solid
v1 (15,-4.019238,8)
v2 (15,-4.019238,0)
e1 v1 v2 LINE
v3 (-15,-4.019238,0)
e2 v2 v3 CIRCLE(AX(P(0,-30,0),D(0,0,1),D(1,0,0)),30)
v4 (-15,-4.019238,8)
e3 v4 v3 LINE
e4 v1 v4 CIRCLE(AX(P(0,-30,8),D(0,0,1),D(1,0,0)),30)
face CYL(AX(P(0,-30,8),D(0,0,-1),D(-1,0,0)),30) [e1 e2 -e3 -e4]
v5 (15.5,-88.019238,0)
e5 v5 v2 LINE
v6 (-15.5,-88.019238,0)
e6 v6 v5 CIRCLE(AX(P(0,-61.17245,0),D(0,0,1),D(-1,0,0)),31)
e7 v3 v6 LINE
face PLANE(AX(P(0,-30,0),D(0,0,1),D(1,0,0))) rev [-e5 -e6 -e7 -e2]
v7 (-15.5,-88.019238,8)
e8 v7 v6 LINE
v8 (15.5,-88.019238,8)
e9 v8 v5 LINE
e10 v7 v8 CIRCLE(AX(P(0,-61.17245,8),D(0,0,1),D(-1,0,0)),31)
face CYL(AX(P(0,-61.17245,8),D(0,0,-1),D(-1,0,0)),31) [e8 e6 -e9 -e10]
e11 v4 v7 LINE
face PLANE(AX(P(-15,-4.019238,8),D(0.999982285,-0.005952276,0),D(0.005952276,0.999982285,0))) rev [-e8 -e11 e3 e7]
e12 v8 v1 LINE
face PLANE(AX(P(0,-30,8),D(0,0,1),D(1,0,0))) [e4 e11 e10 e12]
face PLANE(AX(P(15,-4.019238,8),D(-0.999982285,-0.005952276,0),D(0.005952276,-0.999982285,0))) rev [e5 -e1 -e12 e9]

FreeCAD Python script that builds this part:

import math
import FreeCAD as App
import Part
import Sketcher

V = App.Vector

doc = App.newDocument("Part")
body = doc.addObject("PartDesign::Body", "Body")

# Sketch on XY plane
sketch1 = body.newObject("Sketcher::SketchObject", "Sketch")
sketch1.AttachmentSupport = (doc.getObject("XY_Plane"), [""])
sketch1.MapMode = "FlatFace"
sketch1.addGeometry(Part.LineSegment(V(-15, -4, 0), V(-16, -88, 0)), False)
sketch1.addGeometry(Part.ArcOfCircle(Part.Circle(V(0, -61, 0), V(0, 0, 1), 31), math.radians(-120), math.radians(-60)), False)
sketch1.addGeometry(Part.LineSegment(V(16, -88, 0), V(15, -4, 0)), False)
sketch1.addGeometry(Part.ArcOfCircle(Part.Circle(V(0, -30, 0), V(0, 0, 1), 30), math.radians(60), math.radians(120)), False)
sketch1.addConstraint(Sketcher.Constraint("Coincident", 0, 2, 1, 1))
sketch1.addConstraint(Sketcher.Constraint("Coincident", 1, 2, 2, 1))
sketch1.addConstraint(Sketcher.Constraint("Coincident", 2, 2, 3, 1))
sketch1.addConstraint(Sketcher.Constraint("Coincident", 3, 2, 0, 1))
sketch1.addConstraint(Sketcher.Constraint("Symmetric", 0, 2, 1, 2, -2))
sketch1.addConstraint(Sketcher.Constraint("Symmetric", 2, 2, 3, 2, -2))
sketch1.addConstraint(Sketcher.Constraint("Radius", 1, 31.0))
sketch1.addConstraint(Sketcher.Constraint("Radius", 3, 30.0))
sketch1.addConstraint(Sketcher.Constraint("DistanceY", 3, 3, -1, 1, 30.0))
sketch1.addConstraint(Sketcher.Constraint("DistanceX", -1, 1, 2, 2, 15.0))
sketch1.addConstraint(Sketcher.Constraint("DistanceX", 0, 2, 1, 2, 31.0))
sketch1.addConstraint(Sketcher.Constraint("DistanceY", 1, 2, 2, 2, 84.0))
pad1 = body.newObject("PartDesign::Pad", "Pad")
pad1.Profile = sketch1
pad1.Length = 8

doc.recompute()
